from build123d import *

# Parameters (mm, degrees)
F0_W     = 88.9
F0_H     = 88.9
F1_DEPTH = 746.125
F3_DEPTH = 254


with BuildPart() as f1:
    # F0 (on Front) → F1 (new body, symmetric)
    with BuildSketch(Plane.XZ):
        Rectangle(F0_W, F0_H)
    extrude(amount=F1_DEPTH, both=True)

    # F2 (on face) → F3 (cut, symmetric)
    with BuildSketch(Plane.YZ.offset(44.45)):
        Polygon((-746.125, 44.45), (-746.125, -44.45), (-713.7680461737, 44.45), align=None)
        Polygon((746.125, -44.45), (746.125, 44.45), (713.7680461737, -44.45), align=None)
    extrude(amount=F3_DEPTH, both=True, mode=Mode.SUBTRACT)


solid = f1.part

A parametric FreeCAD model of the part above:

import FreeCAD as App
import Part
import Sketcher
from FreeCAD import Vector
Q = App.Units.Quantity

doc = App.newDocument("Part")
body = doc.addObject("PartDesign::Body", "Body")

sketch1 = body.newObject("Sketcher::SketchObject", "Sketch")
sketch1.AttachmentSupport = (doc.getObject("XZ_Plane"), [""])
sketch1.MapMode = "FlatFace"
sketch1.addGeometry([
    Part.LineSegment(Vector(-44, 44, 0), Vector(-44, -44, 0)),
    Part.LineSegment(Vector(-44, -44, 0), Vector(44, -44, 0)),
    Part.LineSegment(Vector(44, -44, 0), Vector(44, 44, 0)),
    Part.LineSegment(Vector(44, 44, 0), Vector(-44, 44, 0)),
], False)
sketch1.addConstraint([
    Sketcher.Constraint("Coincident", 0, 2, 1, 1),
    Sketcher.Constraint("Coincident", 1, 2, 2, 1),
    Sketcher.Constraint("Coincident", 2, 2, 3, 1),
    Sketcher.Constraint("Coincident", 3, 2, 0, 1),
    Sketcher.Constraint("Vertical", 0),
    Sketcher.Constraint("Horizontal", 1),
    Sketcher.Constraint("Vertical", 2),
    Sketcher.Constraint("Horizontal", 3),
    Sketcher.Constraint("Symmetric", 0, 2, 2, 2, -1, 1),
    Sketcher.Constraint("Equal", 3, 0),
    Sketcher.Constraint("DistanceX", 1, 1, 1, 2, Q("3.5 in")),
])
pad1 = body.newObject("PartDesign::Pad", "Pad")
pad1.Profile = sketch1
pad1.Length = Q("58.75 in")
pad1.Midplane = True

sketch2 = body.newObject("Sketcher::SketchObject", "Sketch001")
sketch2.AttachmentSupport = (doc.getObject("YZ_Plane"), [""])
sketch2.MapMode = "FlatFace"
sketch2.AttachmentOffset = App.Placement(Vector(0, 0, 1.75 * 25.4), App.Rotation())
sketch2.addGeometry([
    Part.LineSegment(Vector(-746, 44, 0), Vector(-746, -44, 0)),
    Part.LineSegment(Vector(-746, -44, 0), Vector(-714, 44, 0)),
    Part.LineSegment(Vector(-714, 44, 0), Vector(-746, 44, 0)),
    Part.LineSegment(Vector(746, -44, 0), Vector(746, 44, 0)),
    Part.LineSegment(Vector(746, 44, 0), Vector(714, -44, 0)),
    Part.LineSegment(Vector(714, -44, 0), Vector(746, -44, 0)),
], False)
sketch2.addConstraint([
    Sketcher.Constraint("Coincident", 0, 2, 1, 1),
    Sketcher.Constraint("Coincident", 1, 2, 2, 1),
    Sketcher.Constraint("Coincident", 2, 2, 0, 1),
    Sketcher.Constraint("Coincident", 3, 2, 4, 1),
    Sketcher.Constraint("Coincident", 4, 2, 5, 1),
    Sketcher.Constraint("Coincident", 5, 2, 3, 1),
    Sketcher.Constraint("Vertical", 0),
    Sketcher.Constraint("Horizontal", 2),
    Sketcher.Constraint("Vertical", 3),
    Sketcher.Constraint("Horizontal", 5),
    Sketcher.Constraint("Symmetric", 0, 2, 3, 2, -1, 1),
    Sketcher.Constraint("Symmetric", 1, 2, 4, 2, -1, 1),
    Sketcher.Constraint("Horizontal", 2, 2, 3, 2),
    Sketcher.Constraint("DistanceY", 0, 2, 0, 1, Q("3.5 in")),
    Sketcher.Constraint("Angle", 1, Q("70 deg")),
    Sketcher.Constraint("DistanceX", 2, 2, 3, 2, Q("58.75 in")),
])
pocket1 = body.newObject("PartDesign::Pocket", "Pocket")
pocket1.Profile = sketch2
pocket1.Length = Q("20 in")
pocket1.Midplane = True

doc.recompute()
